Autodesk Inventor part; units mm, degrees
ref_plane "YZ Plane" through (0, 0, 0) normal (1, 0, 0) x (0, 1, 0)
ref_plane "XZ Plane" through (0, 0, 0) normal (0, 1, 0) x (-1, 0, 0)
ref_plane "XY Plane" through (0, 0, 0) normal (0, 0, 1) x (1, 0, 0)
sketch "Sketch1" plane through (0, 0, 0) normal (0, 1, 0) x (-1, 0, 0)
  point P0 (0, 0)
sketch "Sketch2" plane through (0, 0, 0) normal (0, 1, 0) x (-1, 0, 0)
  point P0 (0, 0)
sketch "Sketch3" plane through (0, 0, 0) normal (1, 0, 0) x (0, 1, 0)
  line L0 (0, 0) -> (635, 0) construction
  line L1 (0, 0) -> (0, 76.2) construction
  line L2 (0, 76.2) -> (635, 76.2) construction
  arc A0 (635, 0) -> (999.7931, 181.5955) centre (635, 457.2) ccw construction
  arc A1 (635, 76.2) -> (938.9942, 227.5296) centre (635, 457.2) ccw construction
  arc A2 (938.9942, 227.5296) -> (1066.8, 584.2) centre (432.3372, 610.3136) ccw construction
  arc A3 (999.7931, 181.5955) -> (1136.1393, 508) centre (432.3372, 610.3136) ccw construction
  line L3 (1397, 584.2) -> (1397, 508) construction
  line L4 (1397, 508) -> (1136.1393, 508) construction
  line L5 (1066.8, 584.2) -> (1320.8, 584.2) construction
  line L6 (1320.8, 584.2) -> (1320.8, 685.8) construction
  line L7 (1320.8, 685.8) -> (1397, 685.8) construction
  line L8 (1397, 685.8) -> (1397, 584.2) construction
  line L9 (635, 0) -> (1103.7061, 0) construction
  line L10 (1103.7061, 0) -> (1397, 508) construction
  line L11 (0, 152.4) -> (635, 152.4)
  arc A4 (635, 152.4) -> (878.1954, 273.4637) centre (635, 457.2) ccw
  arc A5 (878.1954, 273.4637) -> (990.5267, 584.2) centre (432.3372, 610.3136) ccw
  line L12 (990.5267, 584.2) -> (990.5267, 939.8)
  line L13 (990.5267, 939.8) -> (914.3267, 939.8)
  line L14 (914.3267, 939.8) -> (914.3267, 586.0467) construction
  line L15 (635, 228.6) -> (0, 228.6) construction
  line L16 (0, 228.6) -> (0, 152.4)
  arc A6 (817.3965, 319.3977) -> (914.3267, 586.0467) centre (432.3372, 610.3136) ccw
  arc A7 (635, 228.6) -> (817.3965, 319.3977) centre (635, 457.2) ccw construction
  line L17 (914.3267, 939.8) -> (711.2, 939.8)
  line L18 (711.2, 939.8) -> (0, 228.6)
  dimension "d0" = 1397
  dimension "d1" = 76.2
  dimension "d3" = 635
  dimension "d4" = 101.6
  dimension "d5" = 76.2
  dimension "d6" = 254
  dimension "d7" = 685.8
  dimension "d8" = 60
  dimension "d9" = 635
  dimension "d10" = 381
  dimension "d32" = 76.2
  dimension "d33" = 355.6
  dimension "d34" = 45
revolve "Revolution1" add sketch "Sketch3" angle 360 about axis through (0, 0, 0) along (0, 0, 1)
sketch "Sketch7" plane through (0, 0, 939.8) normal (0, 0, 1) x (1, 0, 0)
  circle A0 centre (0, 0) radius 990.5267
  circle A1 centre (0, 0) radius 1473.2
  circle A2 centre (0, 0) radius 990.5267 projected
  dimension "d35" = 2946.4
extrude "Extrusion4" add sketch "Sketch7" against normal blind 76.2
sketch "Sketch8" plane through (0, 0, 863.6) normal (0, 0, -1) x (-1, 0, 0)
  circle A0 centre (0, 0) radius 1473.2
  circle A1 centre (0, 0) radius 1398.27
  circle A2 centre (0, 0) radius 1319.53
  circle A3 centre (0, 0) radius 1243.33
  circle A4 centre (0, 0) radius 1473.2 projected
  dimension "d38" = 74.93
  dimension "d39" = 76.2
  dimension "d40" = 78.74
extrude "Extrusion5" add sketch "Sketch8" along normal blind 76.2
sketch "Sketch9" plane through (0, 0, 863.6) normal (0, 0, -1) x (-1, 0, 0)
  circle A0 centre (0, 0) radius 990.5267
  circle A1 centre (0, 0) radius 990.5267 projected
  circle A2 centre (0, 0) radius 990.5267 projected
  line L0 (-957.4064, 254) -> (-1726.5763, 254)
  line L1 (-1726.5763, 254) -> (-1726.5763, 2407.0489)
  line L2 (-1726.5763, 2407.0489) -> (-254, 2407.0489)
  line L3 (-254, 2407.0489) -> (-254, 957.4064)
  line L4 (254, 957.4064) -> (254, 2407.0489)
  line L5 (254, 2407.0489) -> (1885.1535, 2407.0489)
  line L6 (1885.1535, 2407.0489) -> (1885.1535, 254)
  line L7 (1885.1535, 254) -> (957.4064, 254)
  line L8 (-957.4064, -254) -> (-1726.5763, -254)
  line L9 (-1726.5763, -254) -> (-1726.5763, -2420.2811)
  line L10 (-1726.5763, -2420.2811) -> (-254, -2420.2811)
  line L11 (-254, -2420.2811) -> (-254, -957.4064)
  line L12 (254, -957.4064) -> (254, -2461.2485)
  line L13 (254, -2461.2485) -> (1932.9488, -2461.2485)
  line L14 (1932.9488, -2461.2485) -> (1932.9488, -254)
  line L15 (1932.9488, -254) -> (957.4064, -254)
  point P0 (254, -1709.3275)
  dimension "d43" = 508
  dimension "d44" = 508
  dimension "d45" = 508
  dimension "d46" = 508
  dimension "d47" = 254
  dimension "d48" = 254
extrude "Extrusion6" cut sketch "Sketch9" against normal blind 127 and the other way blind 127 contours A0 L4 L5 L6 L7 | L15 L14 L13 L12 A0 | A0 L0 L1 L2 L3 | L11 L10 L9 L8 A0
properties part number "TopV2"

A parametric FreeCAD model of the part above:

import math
import FreeCAD as App
import Part
import Sketcher
Q = App.Units.Quantity

doc = App.newDocument("Part")
body = doc.addObject("PartDesign::Body", "Body")

# Sketch on YZ plane
sketch1 = body.newObject("Sketcher::SketchObject", "Sketch")
sketch1.AttachmentSupport = (doc.getObject("YZ_Plane"), [""])
sketch1.MapMode = "FlatFace"
sketch1.addGeometry([
    Part.LineSegment(App.Vector(0, 229, 0), App.Vector(0, 152, 0)),  # 0
    Part.LineSegment(App.Vector(0, 152, 0), App.Vector(635, 152, 0)),  # 1
    Part.ArcOfCircle(Part.Circle(App.Vector(635, 457, 0), App.Vector(0, 0, 1), 305), math.radians(-90), math.radians(-37)),  # 2
    Part.ArcOfCircle(Part.Circle(App.Vector(432, 610, 0), App.Vector(0, 0, 1), 559), math.radians(-37), math.radians(-3)),  # 3
    Part.LineSegment(App.Vector(991, 584, 0), App.Vector(991, 940, 0)),  # 4
    Part.LineSegment(App.Vector(991, 940, 0), App.Vector(711, 940, 0)),  # 5
    Part.LineSegment(App.Vector(711, 940, 0), App.Vector(0, 229, 0)),  # 6
], False)
sketch1.addConstraint([
    Sketcher.Constraint("Coincident", 0, 2, 1, 1),
    Sketcher.Constraint("Tangent", 1, 2, 2, 1),
    Sketcher.Constraint("Tangent", 2, 2, 3, 1),
    Sketcher.Constraint("Coincident", 3, 2, 4, 1),
    Sketcher.Constraint("Coincident", 4, 2, 5, 1),
    Sketcher.Constraint("Coincident", 5, 2, 6, 1),
    Sketcher.Constraint("Coincident", 6, 2, 0, 1),
    Sketcher.Constraint("Vertical", 0),
    Sketcher.Constraint("Horizontal", 1),
    Sketcher.Constraint("Vertical", 4),
    Sketcher.Constraint("Horizontal", 5),
    Sketcher.Constraint("PointOnObject", 0, 2, -2),
    Sketcher.Constraint("DistanceX", 1, 1, 1, 2, Q("25 in")),
    Sketcher.Constraint("DistanceY", 0, 2, 0, 1, Q("3 in")),
    Sketcher.Constraint("DistanceY", 4, 1, 4, 2, Q("14 in")),
    Sketcher.Constraint("Radius", 2, Q("12 in")),
    Sketcher.Constraint("Radius", 3, Q("22 in")),
    Sketcher.Constraint("DistanceX", 2, 3, 5, 2, Q("3 in")),
    Sketcher.Constraint("DistanceY", -1, 1, 2, 3, Q("18 in")),
    Sketcher.Constraint("DistanceY", -1, 1, 4, 2, Q("37 in")),
    Sketcher.Constraint("DistanceX", 5, 2, 5, 1, Q("279.3267 mm")),
])
revolution = body.newObject("PartDesign::Revolution", "Revolution")
revolution.Profile = sketch1
revolution.ReferenceAxis = (sketch1, ["V_Axis"])
revolution.Angle = 360

# Sketch on XY plane
sketch2 = body.newObject("Sketcher::SketchObject", "Sketch001")
sketch2.AttachmentSupport = (doc.getObject("XY_Plane"), [""])
sketch2.MapMode = "FlatFace"
sketch2.AttachmentOffset = App.Placement(App.Vector(0, 0, 37 * 25.4), App.Rotation())
sketch2.addGeometry([
    Part.Circle(App.Vector(0, 0, 0), App.Vector(0, 0, 1), 1473),
    Part.Circle(App.Vector(0, 0, 0), App.Vector(0, 0, 1), 991),
], False)
sketch2.addConstraint([
    Sketcher.Constraint("Coincident", 0, 3, -1, 1),
    Sketcher.Constraint("Coincident", 1, 3, -1, 1),
    Sketcher.Constraint("Diameter", 0, Q("116 in")),
    Sketcher.Constraint("Diameter", 1, Q("1981.0534 mm")),
])
pad1 = body.newObject("PartDesign::Pad", "Pad")
pad1.Profile = sketch2
pad1.Length = Q("3 in")
pad1.Reversed = True

# Sketch on XY plane
sketch3 = body.newObject("Sketcher::SketchObject", "Sketch002")
sketch3.AttachmentSupport = (doc.getObject("XY_Plane"), [""])
sketch3.MapMode = "FlatFace"
sketch3.AttachmentOffset = App.Placement(App.Vector(0, 0, 34 * 25.4), App.Rotation())
sketch3.addGeometry([
    Part.Circle(App.Vector(0, 0, 0), App.Vector(0, 0, 1), 1473),
    Part.Circle(App.Vector(0, 0, 0), App.Vector(0, 0, 1), 1398),
    Part.Circle(App.Vector(0, 0, 0), App.Vector(0, 0, 1), 1320),
    Part.Circle(App.Vector(0, 0, 0), App.Vector(0, 0, 1), 1243),
], False)
sketch3.addConstraint([
    Sketcher.Constraint("Coincident", 0, 3, -1, 1),
    Sketcher.Constraint("Coincident", 1, 3, -1, 1),
    Sketcher.Constraint("Coincident", 2, 3, -1, 1),
    Sketcher.Constraint("Coincident", 3, 3, -1, 1),
    Sketcher.Constraint("Diameter", 0, Q("116 in")),
    Sketcher.Constraint("Diameter", 1, Q("110.1 in")),
    Sketcher.Constraint("Diameter", 2, Q("103.9 in")),
    Sketcher.Constraint("Diameter", 3, Q("97.9 in")),
])
pad2 = body.newObject("PartDesign::Pad", "Pad001")
pad2.Profile = sketch3
pad2.Length = Q("3 in")
pad2.Reversed = True

# Sketch on XY plane
sketch4 = body.newObject("Sketcher::SketchObject", "Sketch003")
sketch4.AttachmentSupport = (doc.getObject("XY_Plane"), [""])
sketch4.MapMode = "FlatFace"
sketch4.AttachmentOffset = App.Placement(App.Vector(0, 0, 34 * 25.4), App.Rotation())
sketch4.addGeometry([
    Part.ArcOfCircle(Part.Circle(App.Vector(0, 0, 0), App.Vector(0, 0, 1), 991), math.radians(105), math.radians(165)),  # 0
    Part.LineSegment(App.Vector(-957, 254, 0), App.Vector(-1885, 254, 0)),  # 1
    Part.LineSegment(App.Vector(-1885, 254, 0), App.Vector(-1885, 2407, 0)),  # 2
    Part.LineSegment(App.Vector(-1885, 2407, 0), App.Vector(-254, 2407, 0)),  # 3
    Part.LineSegment(App.Vector(-254, 2407, 0), App.Vector(-254, 957, 0)),  # 4
    Part.LineSegment(App.Vector(-1933, -254, 0), App.Vector(-957, -254, 0)),  # 5
    Part.ArcOfCircle(Part.Circle(App.Vector(0, 0, 0), App.Vector(0, 0, 1), 991), math.radians(-165), math.radians(-105)),  # 6
    Part.LineSegment(App.Vector(-254, -957, 0), App.Vector(-254, -2461, 0)),  # 7
    Part.LineSegment(App.Vector(-254, -2461, 0), App.Vector(-1933, -2461, 0)),  # 8
    Part.LineSegment(App.Vector(-1933, -2461, 0), App.Vector(-1933, -254, 0)),  # 9
    Part.ArcOfCircle(Part.Circle(App.Vector(0, 0, 0), App.Vector(0, 0, 1), 991), math.radians(15), math.radians(75)),  # 10
    Part.LineSegment(App.Vector(254, 957, 0), App.Vector(254, 2407, 0)),  # 11
    Part.LineSegment(App.Vector(254, 2407, 0), App.Vector(1727, 2407, 0)),  # 12
    Part.LineSegment(App.Vector(1727, 2407, 0), App.Vector(1727, 254, 0)),  # 13
    Part.LineSegment(App.Vector(1727, 254, 0), App.Vector(957, 254, 0)),  # 14
    Part.LineSegment(App.Vector(254, -2420, 0), App.Vector(254, -957, 0)),  # 15
    Part.ArcOfCircle(Part.Circle(App.Vector(0, 0, 0), App.Vector(0, 0, 1), 991), math.radians(-75), math.radians(-15)),  # 16
    Part.LineSegment(App.Vector(957, -254, 0), App.Vector(1727, -254, 0)),  # 17
    Part.LineSegment(App.Vector(1727, -254, 0), App.Vector(1727, -2420, 0)),  # 18
    Part.LineSegment(App.Vector(1727, -2420, 0), App.Vector(254, -2420, 0)),  # 19
], False)
sketch4.addConstraint([
    Sketcher.Constraint("Coincident", 0, 2, 1, 1),
    Sketcher.Constraint("Coincident", 1, 2, 2, 1),
    Sketcher.Constraint("Coincident", 2, 2, 3, 1),
    Sketcher.Constraint("Coincident", 3, 2, 4, 1),
    Sketcher.Constraint("Coincident", 4, 2, 0, 1),
    Sketcher.Constraint("Coincident", 5, 2, 6, 1),
    Sketcher.Constraint("Coincident", 6, 2, 7, 1),
    Sketcher.Constraint("Coincident", 7, 2, 8, 1),
    Sketcher.Constraint("Coincident", 8, 2, 9, 1),
    Sketcher.Constraint("Coincident", 9, 2, 5, 1),
    Sketcher.Constraint("Coincident", 10, 2, 11, 1),
    Sketcher.Constraint("Coincident", 11, 2, 12, 1),
    Sketcher.Constraint("Coincident", 12, 2, 13, 1),
    Sketcher.Constraint("Coincident", 13, 2, 14, 1),
    Sketcher.Constraint("Coincident", 14, 2, 10, 1),
    Sketcher.Constraint("Coincident", 15, 2, 16, 1),
    Sketcher.Constraint("Coincident", 16, 2, 17, 1),
    Sketcher.Constraint("Coincident", 17, 2, 18, 1),
    Sketcher.Constraint("Coincident", 18, 2, 19, 1),
    Sketcher.Constraint("Coincident", 19, 2, 15, 1),
    Sketcher.Constraint("Horizontal", 1),
    Sketcher.Constraint("Vertical", 2),
    Sketcher.Constraint("Horizontal", 3),
    Sketcher.Constraint("Vertical", 4),
    Sketcher.Constraint("Horizontal", 5),
    Sketcher.Constraint("Vertical", 7),
    Sketcher.Constraint("Horizontal", 8),
    Sketcher.Constraint("Vertical", 9),
    Sketcher.Constraint("Vertical", 11),
    Sketcher.Constraint("Horizontal", 12),
    Sketcher.Constraint("Vertical", 13),
    Sketcher.Constraint("Horizontal", 14),
    Sketcher.Constraint("Vertical", 15),
    Sketcher.Constraint("Horizontal", 17),
    Sketcher.Constraint("Vertical", 18),
    Sketcher.Constraint("Horizontal", 19),
    Sketcher.Constraint("Coincident", 0, 3, -1, 1),
    Sketcher.Constraint("Coincident", 6, 3, -1, 1),
    Sketcher.Constraint("Coincident", 10, 3, -1, 1),
    Sketcher.Constraint("Coincident", 16, 3, -1, 1),
    Sketcher.Constraint("Equal", 0, 6),
    Sketcher.Constraint("Equal", 6, 10),
    Sketcher.Constraint("Equal", 10, 16),
    Sketcher.Constraint("Symmetric", 3, 2, 11, 2, -2),
    Sketcher.Constraint("Symmetric", 13, 2, 17, 2, -1),
    Sketcher.Constraint("Horizontal", 1, 2, 13, 2),
    Sketcher.Constraint("Vertical", 11, 2, 15, 2),
    Sketcher.Constraint("DistanceY", -1, 1, 1, 2, Q("10 in")),
    Sketcher.Constraint("DistanceX", 3, 2, -1, 1, Q("10 in")),
    Sketcher.Constraint("DistanceY", 5, 2, -1, 1, Q("10 in")),
    Sketcher.Constraint("DistanceX", 7, 2, -1, 1, Q("10 in")),
    Sketcher.Constraint("Radius", 0, Q("990.5267 mm")),
    Sketcher.Constraint("DistanceY", 2, 1, 2, 2, Q("84.7657 in")),
    Sketcher.Constraint("DistanceY", 15, 1, 15, 2, Q("57.5935 in")),
    Sketcher.Constraint("DistanceX", 1, 2, 1, 1, Q("927.747 mm")),
    Sketcher.Constraint("DistanceX", 5, 1, 5, 2, Q("975.5424 mm")),
    Sketcher.Constraint("DistanceX", 12, 1, 12, 2, Q("1472.5763 mm")),
    Sketcher.Constraint("DistanceY", 7, 2, 7, 1, Q("1503.842 mm")),
])
pocket1 = body.newObject("PartDesign::Pocket", "Pocket")
pocket1.Profile = sketch4
pocket1.Type = "ThroughAll"
pocket1.Midplane = True

doc.recompute()
